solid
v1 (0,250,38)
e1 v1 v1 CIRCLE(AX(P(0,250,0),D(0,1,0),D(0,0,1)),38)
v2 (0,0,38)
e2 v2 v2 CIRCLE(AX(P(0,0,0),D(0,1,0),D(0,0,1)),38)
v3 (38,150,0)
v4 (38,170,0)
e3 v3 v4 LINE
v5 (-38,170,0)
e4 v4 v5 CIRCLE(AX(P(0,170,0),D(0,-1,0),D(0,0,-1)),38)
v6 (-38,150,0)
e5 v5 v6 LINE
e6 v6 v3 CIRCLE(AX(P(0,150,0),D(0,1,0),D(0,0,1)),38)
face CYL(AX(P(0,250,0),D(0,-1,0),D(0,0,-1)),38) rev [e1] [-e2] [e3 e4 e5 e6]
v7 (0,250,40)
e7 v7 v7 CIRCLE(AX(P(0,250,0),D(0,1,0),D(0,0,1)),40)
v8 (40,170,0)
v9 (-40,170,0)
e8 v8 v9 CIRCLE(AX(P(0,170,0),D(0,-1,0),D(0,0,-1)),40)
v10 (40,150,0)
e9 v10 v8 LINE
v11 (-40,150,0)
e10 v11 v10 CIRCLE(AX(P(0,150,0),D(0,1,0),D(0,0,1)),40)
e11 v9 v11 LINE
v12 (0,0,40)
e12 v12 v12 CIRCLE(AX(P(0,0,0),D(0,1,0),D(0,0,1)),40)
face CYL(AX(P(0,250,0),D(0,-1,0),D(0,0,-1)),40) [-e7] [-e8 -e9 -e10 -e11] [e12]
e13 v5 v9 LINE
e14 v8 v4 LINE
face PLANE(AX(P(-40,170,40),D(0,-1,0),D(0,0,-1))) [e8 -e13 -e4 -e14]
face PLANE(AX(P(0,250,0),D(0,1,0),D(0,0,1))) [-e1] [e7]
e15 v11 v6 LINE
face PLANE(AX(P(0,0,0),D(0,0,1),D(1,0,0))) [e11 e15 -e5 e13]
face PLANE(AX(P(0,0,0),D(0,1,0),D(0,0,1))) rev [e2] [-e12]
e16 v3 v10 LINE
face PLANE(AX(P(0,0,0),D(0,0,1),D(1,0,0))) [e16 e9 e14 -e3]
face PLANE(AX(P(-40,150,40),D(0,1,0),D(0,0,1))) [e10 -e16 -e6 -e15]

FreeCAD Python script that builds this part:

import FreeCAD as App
import Part
import Sketcher
from FreeCAD import Vector
Q = App.Units.Quantity


def add_polygon(sketch, points):
    """Adds a closed chain of lines whose ends are joined by coincident constraints."""
    first, n = sketch.GeometryCount, len(points)
    for a, b in zip(points, points[1:] + points[:1]):
        sketch.addGeometry(Part.LineSegment(App.Vector(*a, 0), App.Vector(*b, 0)), False)
    for i in range(n):
        sketch.addConstraint(Sketcher.Constraint("Coincident", first + i, 2, first + (i + 1) % n, 1))

doc = App.newDocument("Part")
body = doc.addObject("PartDesign::Body", "Body")

sketch1 = doc.addObject("Sketcher::SketchObject", "Sketch")
body.addObject(sketch1)
sketch1.AttachmentSupport = (doc.XZ_Plane, [""])
sketch1.MapMode = "FlatFace"
sketch1.addGeometry(Part.Circle(Vector(0, 0, 0), Vector(0, 0, 1), 40), False)
sketch1.addGeometry(Part.Circle(Vector(0, 0, 0), Vector(0, 0, 1), 38), False)
sketch1.addConstraint(Sketcher.Constraint("Coincident", 0, 3, -1, 1))
sketch1.addConstraint(Sketcher.Constraint("Coincident", 1, 3, -1, 1))
sketch1.addConstraint(Sketcher.Constraint("Diameter", 0, Q("80 mm")))
sketch1.addConstraint(Sketcher.Constraint("Diameter", 1, Q("76 mm")))
pad1 = doc.addObject("PartDesign::Pad", "Pad")
body.addObject(pad1)
pad1.Profile = sketch1
pad1.Length = 250
pad1.Reversed = True

sketch2 = doc.addObject("Sketcher::SketchObject", "Sketch001")
body.addObject(sketch2)
sketch2.AttachmentSupport = (doc.XY_Plane, [""])
sketch2.MapMode = "FlatFace"
add_polygon(sketch2, [(-40, 170), (-40, 150), (40, 150), (40, 170)])
sketch2.addConstraint(Sketcher.Constraint("Vertical", 0))
sketch2.addConstraint(Sketcher.Constraint("Horizontal", 1))
sketch2.addConstraint(Sketcher.Constraint("Vertical", 2))
sketch2.addConstraint(Sketcher.Constraint("Horizontal", 3))
sketch2.addConstraint(Sketcher.Constraint("DistanceX", 1, 1, 1, 2, Q("80 mm")))
sketch2.addConstraint(Sketcher.Constraint("DistanceY", 0, 2, 0, 1, Q("20 mm")))
sketch2.addConstraint(Sketcher.Constraint("DistanceX", 0, 2, -1, 1, Q("40 mm")))
sketch2.addConstraint(Sketcher.Constraint("DistanceY", -1, 1, 0, 2, Q("150 mm")))
pocket1 = doc.addObject("PartDesign::Pocket", "Pocket")
body.addObject(pocket1)
pocket1.Profile = sketch2
pocket1.Type = "ThroughAll"
pocket1.Reversed = True

doc.recompute()
